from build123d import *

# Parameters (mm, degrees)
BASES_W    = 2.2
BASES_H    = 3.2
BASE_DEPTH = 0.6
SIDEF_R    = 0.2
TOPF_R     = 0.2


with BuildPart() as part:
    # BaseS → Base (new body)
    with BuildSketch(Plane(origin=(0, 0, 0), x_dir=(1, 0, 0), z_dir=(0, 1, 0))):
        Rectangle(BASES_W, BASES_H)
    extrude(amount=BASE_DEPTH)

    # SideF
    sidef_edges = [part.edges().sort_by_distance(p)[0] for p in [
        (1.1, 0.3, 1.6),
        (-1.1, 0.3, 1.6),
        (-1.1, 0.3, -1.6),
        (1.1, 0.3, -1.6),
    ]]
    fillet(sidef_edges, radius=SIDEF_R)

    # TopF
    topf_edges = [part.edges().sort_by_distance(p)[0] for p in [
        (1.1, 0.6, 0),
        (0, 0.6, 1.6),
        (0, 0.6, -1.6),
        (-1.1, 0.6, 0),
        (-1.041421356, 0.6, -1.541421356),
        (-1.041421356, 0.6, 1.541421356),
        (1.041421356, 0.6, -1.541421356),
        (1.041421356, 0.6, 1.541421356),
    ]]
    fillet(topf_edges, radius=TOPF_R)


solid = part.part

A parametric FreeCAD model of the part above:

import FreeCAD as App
import Part
import Sketcher
from FreeCAD import Vector
Q = App.Units.Quantity


def edges_at(feature, points):
    """Names of the edges that pass closest to the given points."""
    edges = feature.Shape.Edges
    near = lambda p: min(range(len(edges)), key=lambda i: edges[i].distToShape(Part.Vertex(*p))[0])
    return sorted({f"Edge{near(p) + 1}" for p in points})


def add_polygon(sketch, points):
    """Adds a closed chain of lines whose ends are joined by coincident constraints."""
    first, n = sketch.GeometryCount, len(points)
    for a, b in zip(points, points[1:] + points[:1]):
        sketch.addGeometry(Part.LineSegment(App.Vector(*a, 0), App.Vector(*b, 0)), False)
    for i in range(n):
        sketch.addConstraint(Sketcher.Constraint("Coincident", first + i, 2, first + (i + 1) % n, 1))

doc = App.newDocument("Part")
body = doc.addObject("PartDesign::Body", "Body")

sketch1 = doc.addObject("Sketcher::SketchObject", "Sketch")
body.addObject(sketch1)
sketch1.AttachmentSupport = (doc.XZ_Plane, [""])
sketch1.MapMode = "FlatFace"
add_polygon(sketch1, [(-1.1, -1.6), (-1.1, 1.6), (1.1, 1.6), (1.1, -1.6)])
sketch1.addConstraint([
    Sketcher.Constraint("Vertical", 0),
    Sketcher.Constraint("Horizontal", 1),
    Sketcher.Constraint("Vertical", 2),
    Sketcher.Constraint("Horizontal", 3),
    Sketcher.Constraint("Symmetric", 0, 2, 2, 2, -1, 1),
    Sketcher.Constraint("DistanceX", 1, 1, 1, 2, Q("2.2 mm")),
    Sketcher.Constraint("DistanceY", 0, 1, 0, 2, Q("3.2 mm")),
])
pad1 = doc.addObject("PartDesign::Pad", "Pad")
body.addObject(pad1)
pad1.Profile = sketch1
pad1.Length = 0.6
pad1.Reversed = True
doc.recompute()

fillet = doc.addObject("PartDesign::Fillet", "Fillet")
body.addObject(fillet)
fillet.Base = (pad1, edges_at(pad1, [
    (1.1, 0.3, 1.6),
    (-1.1, 0.3, 1.6),
    (-1.1, 0.3, -1.6),
    (1.1, 0.3, -1.6),
]))
fillet.Radius = 0.2
doc.recompute()

fillet2 = doc.addObject("PartDesign::Fillet", "Fillet001")
body.addObject(fillet2)
fillet2.Base = (fillet, edges_at(fillet, [
    (1.1, 0.6, 0),
    (0, 0.6, 1.6),
    (0, 0.6, -1.6),
    (-1.1, 0.6, 0),
    (-1.041, 0.6, -1.541),
    (-1.041, 0.6, 1.541),
    (1.041, 0.6, -1.541),
    (1.041, 0.6, 1.541),
]))
fillet2.Radius = 0.2

doc.recompute()
